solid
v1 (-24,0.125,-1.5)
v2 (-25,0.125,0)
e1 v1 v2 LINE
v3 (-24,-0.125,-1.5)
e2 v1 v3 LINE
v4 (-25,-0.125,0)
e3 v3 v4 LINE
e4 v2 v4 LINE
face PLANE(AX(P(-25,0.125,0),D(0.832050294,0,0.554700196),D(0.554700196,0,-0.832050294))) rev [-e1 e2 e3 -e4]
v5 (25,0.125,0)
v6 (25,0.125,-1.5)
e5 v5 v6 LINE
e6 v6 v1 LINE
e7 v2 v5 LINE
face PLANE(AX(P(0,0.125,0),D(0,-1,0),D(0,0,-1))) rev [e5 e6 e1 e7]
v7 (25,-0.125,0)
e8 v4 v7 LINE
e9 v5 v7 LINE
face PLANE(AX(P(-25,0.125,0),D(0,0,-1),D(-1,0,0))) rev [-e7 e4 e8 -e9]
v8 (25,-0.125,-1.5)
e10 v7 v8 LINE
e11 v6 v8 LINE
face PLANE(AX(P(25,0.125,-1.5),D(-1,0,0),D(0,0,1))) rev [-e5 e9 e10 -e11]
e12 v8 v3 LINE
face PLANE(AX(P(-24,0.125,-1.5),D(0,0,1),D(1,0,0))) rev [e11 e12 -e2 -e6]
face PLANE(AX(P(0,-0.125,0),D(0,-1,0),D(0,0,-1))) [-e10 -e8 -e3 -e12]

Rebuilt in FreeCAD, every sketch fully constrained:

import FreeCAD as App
import Part
import Sketcher
from FreeCAD import Vector


def add_polygon(sketch, points):
    """Adds a closed chain of lines whose ends are joined by coincident constraints."""
    first, n = sketch.GeometryCount, len(points)
    for a, b in zip(points, points[1:] + points[:1]):
        sketch.addGeometry(Part.LineSegment(App.Vector(*a, 0), App.Vector(*b, 0)), False)
    for i in range(n):
        sketch.addConstraint(Sketcher.Constraint("Coincident", first + i, 2, first + (i + 1) % n, 1))

doc = App.newDocument("Part")
body = doc.addObject("PartDesign::Body", "Body")

sketch1 = body.newObject("Sketcher::SketchObject", "Sketch")
sketch1.AttachmentSupport = (doc.getObject("XZ_Plane"), [""])
sketch1.MapMode = "FlatFace"
add_polygon(sketch1, [(-25, 0), (25, 0), (25, -1.5), (-24, -1.5)])
sketch1.addConstraint([
    Sketcher.Constraint("Horizontal", 0),
    Sketcher.Constraint("Vertical", 1),
    Sketcher.Constraint("Horizontal", 2),
    Sketcher.Constraint("Symmetric", 0, 2, 3, 2, -1, 1),
    Sketcher.Constraint("DistanceX", 0, 1, 0, 2, 50.0),
    Sketcher.Constraint("DistanceX", 2, 2, 2, 1, 49.0),
    Sketcher.Constraint("DistanceY", 1, 2, 1, 1, 1.5),
])
pad1 = body.newObject("PartDesign::Pad", "Pad")
pad1.Profile = sketch1
pad1.Length = 0.25
pad1.Midplane = True

doc.recompute()
